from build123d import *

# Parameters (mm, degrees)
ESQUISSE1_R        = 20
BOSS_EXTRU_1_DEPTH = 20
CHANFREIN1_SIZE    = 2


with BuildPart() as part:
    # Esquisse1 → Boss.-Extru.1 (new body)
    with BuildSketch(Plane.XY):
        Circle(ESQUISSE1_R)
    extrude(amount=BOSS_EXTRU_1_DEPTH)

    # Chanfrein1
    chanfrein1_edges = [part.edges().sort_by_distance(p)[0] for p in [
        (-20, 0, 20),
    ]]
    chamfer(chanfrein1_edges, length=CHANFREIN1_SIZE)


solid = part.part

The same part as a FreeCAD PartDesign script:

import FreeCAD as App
import Part
import Sketcher
Q = App.Units.Quantity


def edges_at(feature, points):
    """Names of the edges that pass closest to the given points."""
    edges = feature.Shape.Edges
    near = lambda p: min(range(len(edges)), key=lambda i: edges[i].distToShape(Part.Vertex(*p))[0])
    return sorted({f"Edge{near(p) + 1}" for p in points})

doc = App.newDocument("Part")
params = doc.addObject("Spreadsheet::Sheet", "Params")
for row, (alias, value) in enumerate([
    ("sketch1_diameter", "40 mm"),
    ("pad1_length", "20 mm"),
    ("chamfer_size", "2 mm"),
], start=1):
    params.set(f"A{row}", alias)
    params.set(f"B{row}", "=" + value)
    params.setAlias(f"B{row}", alias)

body = doc.addObject("PartDesign::Body", "Body")

sketch1 = body.newObject("Sketcher::SketchObject", "Sketch")
sketch1.AttachmentSupport = (doc.getObject("XY_Plane"), [""])
sketch1.MapMode = "FlatFace"
sketch1.addGeometry(Part.Circle(App.Vector(0, 0, 0), App.Vector(0, 0, 1), 20), False)
sketch1.addConstraint(Sketcher.Constraint("Coincident", 0, 3, -1, 1))
sketch1.addConstraint(Sketcher.Constraint("Diameter", 0, Q("40 mm")))
sketch1.setExpression("Constraints[1]", "Params.sketch1_diameter")
pad1 = body.newObject("PartDesign::Pad", "Pad")
pad1.Profile = sketch1
pad1.setExpression("Length", "Params.pad1_length")
doc.recompute()

chamfer = body.newObject("PartDesign::Chamfer", "Chamfer")
chamfer.Base = (pad1, edges_at(pad1, [(-20, 0, 20)]))
chamfer.setExpression("Size", "Params.chamfer_size")

doc.recompute()
